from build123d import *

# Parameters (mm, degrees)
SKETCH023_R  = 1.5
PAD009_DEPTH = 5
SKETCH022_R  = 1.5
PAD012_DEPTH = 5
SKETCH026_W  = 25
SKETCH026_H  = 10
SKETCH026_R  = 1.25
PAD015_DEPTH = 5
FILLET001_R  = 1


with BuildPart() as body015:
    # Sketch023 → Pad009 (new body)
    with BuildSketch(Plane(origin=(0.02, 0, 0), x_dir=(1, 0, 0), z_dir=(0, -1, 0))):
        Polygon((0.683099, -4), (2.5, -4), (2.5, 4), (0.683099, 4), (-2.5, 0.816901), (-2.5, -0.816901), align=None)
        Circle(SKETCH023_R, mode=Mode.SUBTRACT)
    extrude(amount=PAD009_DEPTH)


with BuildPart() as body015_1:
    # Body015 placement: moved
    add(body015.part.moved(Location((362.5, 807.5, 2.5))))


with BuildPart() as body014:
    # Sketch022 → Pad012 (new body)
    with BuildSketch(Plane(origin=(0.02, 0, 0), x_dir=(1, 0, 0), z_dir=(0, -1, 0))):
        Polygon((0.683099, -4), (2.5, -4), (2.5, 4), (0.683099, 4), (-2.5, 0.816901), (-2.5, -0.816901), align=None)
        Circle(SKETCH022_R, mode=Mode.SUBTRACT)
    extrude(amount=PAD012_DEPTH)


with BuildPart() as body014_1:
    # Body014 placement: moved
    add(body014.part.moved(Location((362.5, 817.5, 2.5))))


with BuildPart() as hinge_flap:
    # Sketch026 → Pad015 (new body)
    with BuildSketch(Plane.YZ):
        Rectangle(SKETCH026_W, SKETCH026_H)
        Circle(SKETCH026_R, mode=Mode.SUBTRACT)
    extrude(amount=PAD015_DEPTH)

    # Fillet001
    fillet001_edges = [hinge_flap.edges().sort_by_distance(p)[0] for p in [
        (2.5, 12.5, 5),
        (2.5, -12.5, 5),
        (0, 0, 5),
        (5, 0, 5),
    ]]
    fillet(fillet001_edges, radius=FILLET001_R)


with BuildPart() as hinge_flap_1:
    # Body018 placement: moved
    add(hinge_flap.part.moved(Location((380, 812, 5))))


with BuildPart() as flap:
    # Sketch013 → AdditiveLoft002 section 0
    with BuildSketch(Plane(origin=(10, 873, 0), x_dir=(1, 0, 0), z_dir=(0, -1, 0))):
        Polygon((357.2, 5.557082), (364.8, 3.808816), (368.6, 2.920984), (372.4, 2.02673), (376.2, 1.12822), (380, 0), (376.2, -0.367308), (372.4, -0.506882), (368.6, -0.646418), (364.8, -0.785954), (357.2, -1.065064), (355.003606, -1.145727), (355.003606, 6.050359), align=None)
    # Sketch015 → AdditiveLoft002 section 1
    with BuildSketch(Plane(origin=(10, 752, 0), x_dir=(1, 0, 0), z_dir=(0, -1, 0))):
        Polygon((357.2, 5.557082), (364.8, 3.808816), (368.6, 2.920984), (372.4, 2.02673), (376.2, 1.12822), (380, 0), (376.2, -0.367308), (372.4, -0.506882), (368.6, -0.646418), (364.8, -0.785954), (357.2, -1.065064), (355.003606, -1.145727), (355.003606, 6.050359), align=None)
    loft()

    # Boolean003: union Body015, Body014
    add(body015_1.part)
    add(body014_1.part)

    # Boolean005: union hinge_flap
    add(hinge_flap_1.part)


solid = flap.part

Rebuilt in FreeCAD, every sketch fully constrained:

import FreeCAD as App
import Part
import Sketcher

V = App.Vector
Q = App.Units.Quantity


def edges_at(feature, points):
    """Names of the edges that pass closest to the given points."""
    edges = feature.Shape.Edges
    near = lambda p: min(range(len(edges)), key=lambda i: edges[i].distToShape(Part.Vertex(*p))[0])
    return sorted({f"Edge{near(p) + 1}" for p in points})


def add_polygon(sketch, points):
    """Adds a closed chain of lines whose ends are joined by coincident constraints."""
    first, n = sketch.GeometryCount, len(points)
    for a, b in zip(points, points[1:] + points[:1]):
        sketch.addGeometry(Part.LineSegment(App.Vector(*a, 0), App.Vector(*b, 0)), False)
    for i in range(n):
        sketch.addConstraint(Sketcher.Constraint("Coincident", first + i, 2, first + (i + 1) % n, 1))

doc = App.newDocument("Part")
params = doc.addObject("Spreadsheet::Sheet", "Params")
for row, (alias, value) in enumerate([
    ("sketch1_diameter", "3 mm"),
    ("sketch1_height", "8 mm"),
    ("pad1_length", "5 mm"),
    ("sketch2_diameter", "3 mm"),
    ("sketch2_height", "8 mm"),
    ("pad2_length", "5 mm"),
    ("sketch3_diameter", "2.5 mm"),
    ("sketch3_width", "25 mm"),
    ("sketch3_height", "10 mm"),
    ("pad3_length", "5 mm"),
    ("fillet_radius", "1 mm"),
], start=1):
    params.set(f"A{row}", alias)
    params.set(f"B{row}", "=" + value)
    params.setAlias(f"B{row}", alias)

body = doc.addObject("PartDesign::Body", "Body")

# Sketch on XZ plane
sketch1 = body.newObject("Sketcher::SketchObject", "Sketch")
sketch1.AttachmentSupport = (doc.getObject("XZ_Plane"), [""])
sketch1.MapMode = "FlatFace"
add_polygon(sketch1, [(0.7, -4), (2.5, -4), (2.5, 4), (0.7, 4), (-2.5, 0.8), (-2.5, -0.8)])  # lines 0-5
sketch1.addGeometry(Part.Circle(V(0, 0, 0), V(0, 0, 1), 1.5), False)  # 6
sketch1.addConstraint(Sketcher.Constraint("Horizontal", 0))
sketch1.addConstraint(Sketcher.Constraint("Vertical", 1))
sketch1.addConstraint(Sketcher.Constraint("Horizontal", 2))
sketch1.addConstraint(Sketcher.Constraint("Vertical", 4))
sketch1.addConstraint(Sketcher.Constraint("Symmetric", 2, 2, 5, 2, -1))
sketch1.addConstraint(Sketcher.Constraint("PointOnObject", 6, 3, -1))
sketch1.addConstraint(Sketcher.Constraint("Perpendicular", 3, 5))
sketch1.addConstraint(Sketcher.Constraint("Equal", 3, 5))
sketch1.addConstraint(Sketcher.Constraint("Diameter", 6, Q("3 mm")))
sketch1.addConstraint(Sketcher.Constraint("DistanceY", 1, 1, 1, 2, Q("8 mm")))
sketch1.addConstraint(Sketcher.Constraint("DistanceX", 3, 2, 1, 2, Q("5 mm")))
sketch1.addConstraint(Sketcher.Constraint("DistanceX", 6, 3, 0, 2, Q("2.5 mm")))
sketch1.addConstraint(Sketcher.Constraint("DistanceX", -1, 1, 6, 3, Q("0.02 mm")))
sketch1.addConstraint(Sketcher.Constraint("DistanceX", 0, 1, 0, 2, Q("1.816901 mm")))
sketch1.setExpression("Constraints[14]", "Params.sketch1_diameter")
sketch1.setExpression("Constraints[15]", "Params.sketch1_height")
pad1 = body.newObject("PartDesign::Pad", "Pad")
pad1.Profile = sketch1
pad1.setExpression("Length", "Params.pad1_length")
body2 = doc.addObject("PartDesign::Body", "Body001")
doc.recompute()

body.Placement = App.Placement(V(362.5, 807.5, 2.5), App.Rotation(V(0, 0, 1), 0))
boolean = body2.newObject("PartDesign::Boolean", "Boolean")
boolean.Type = "Fuse"
boolean.addObjects([body])
body3 = doc.addObject("PartDesign::Body", "Body002")

# Sketch on XZ plane
sketch2 = body3.newObject("Sketcher::SketchObject", "Sketch001")
sketch2.AttachmentSupport = (doc.getObject("XZ_Plane002"), [""])
sketch2.MapMode = "FlatFace"
add_polygon(sketch2, [(0.7, -4), (2.5, -4), (2.5, 4), (0.7, 4), (-2.5, 0.8), (-2.5, -0.8)])  # lines 0-5
sketch2.addGeometry(Part.Circle(V(0, 0, 0), V(0, 0, 1), 1.5), False)  # 6
sketch2.addConstraint(Sketcher.Constraint("Horizontal", 0))
sketch2.addConstraint(Sketcher.Constraint("Vertical", 1))
sketch2.addConstraint(Sketcher.Constraint("Horizontal", 2))
sketch2.addConstraint(Sketcher.Constraint("Vertical", 4))
sketch2.addConstraint(Sketcher.Constraint("Symmetric", 2, 2, 5, 2, -1))
sketch2.addConstraint(Sketcher.Constraint("PointOnObject", 6, 3, -1))
sketch2.addConstraint(Sketcher.Constraint("Perpendicular", 3, 5))
sketch2.addConstraint(Sketcher.Constraint("Equal", 3, 5))
sketch2.addConstraint(Sketcher.Constraint("Diameter", 6, Q("3 mm")))
sketch2.addConstraint(Sketcher.Constraint("DistanceY", 1, 1, 1, 2, Q("8 mm")))
sketch2.addConstraint(Sketcher.Constraint("DistanceX", 3, 2, 1, 2, Q("5 mm")))
sketch2.addConstraint(Sketcher.Constraint("DistanceX", 6, 3, 0, 2, Q("2.5 mm")))
sketch2.addConstraint(Sketcher.Constraint("DistanceX", -1, 1, 6, 3, Q("0.02 mm")))
sketch2.addConstraint(Sketcher.Constraint("DistanceX", 0, 1, 0, 2, Q("1.816901 mm")))
sketch2.setExpression("Constraints[14]", "Params.sketch2_diameter")
sketch2.setExpression("Constraints[15]", "Params.sketch2_height")
pad2 = body3.newObject("PartDesign::Pad", "Pad001")
pad2.Profile = sketch2
pad2.setExpression("Length", "Params.pad2_length")
body4 = doc.addObject("PartDesign::Body", "Body003")
doc.recompute()

body3.Placement = App.Placement(V(362.5, 817.5, 2.5), App.Rotation(V(0, 0, 1), 0))
boolean2 = body4.newObject("PartDesign::Boolean", "Boolean001")
boolean2.Type = "Fuse"
boolean2.addObjects([body3])
body5 = doc.addObject("PartDesign::Body", "Body004")

# Sketch on YZ plane
sketch3 = body5.newObject("Sketcher::SketchObject", "Sketch002")
sketch3.AttachmentSupport = (doc.getObject("YZ_Plane004"), [""])
sketch3.MapMode = "FlatFace"
add_polygon(sketch3, [(-12.5, 5), (-12.5, -5), (12.5, -5), (12.5, 5)])  # lines 0-3
sketch3.addGeometry(Part.Circle(V(0, 0, 0), V(0, 0, 1), 1.2), False)  # 4
sketch3.addConstraint(Sketcher.Constraint("Vertical", 0))
sketch3.addConstraint(Sketcher.Constraint("Horizontal", 1))
sketch3.addConstraint(Sketcher.Constraint("Vertical", 2))
sketch3.addConstraint(Sketcher.Constraint("Horizontal", 3))
sketch3.addConstraint(Sketcher.Constraint("Coincident", 4, 3, -1, 1))
sketch3.addConstraint(Sketcher.Constraint("Symmetric", 0, 2, 2, 2, -1, 1))
sketch3.addConstraint(Sketcher.Constraint("Diameter", 4, Q("2.5 mm")))
sketch3.addConstraint(Sketcher.Constraint("DistanceX", 1, 1, 1, 2, Q("25 mm")))
sketch3.addConstraint(Sketcher.Constraint("DistanceY", 0, 2, 0, 1, Q("10 mm")))
sketch3.setExpression("Constraints[10]", "Params.sketch3_diameter")
sketch3.setExpression("Constraints[11]", "Params.sketch3_width")
sketch3.setExpression("Constraints[12]", "Params.sketch3_height")
pad3 = body5.newObject("PartDesign::Pad", "Pad002")
pad3.Profile = sketch3
pad3.setExpression("Length", "Params.pad3_length")
doc.recompute()

fillet = body5.newObject("PartDesign::Fillet", "Fillet")
fillet.Base = (pad3, edges_at(pad3, [
    (2.5, 12.5, 5),
    (2.5, -12.5, 5),
    (0, 0, 5),
    (5, 0, 5),
]))
fillet.setExpression("Radius", "Params.fillet_radius")
body6 = doc.addObject("PartDesign::Body", "Body005")
doc.recompute()

body5.Placement = App.Placement(V(380, 812, 5), App.Rotation(V(0, 0, 1), 0))
boolean3 = body6.newObject("PartDesign::Boolean", "Boolean002")
boolean3.Type = "Fuse"
boolean3.addObjects([body5])
body7 = doc.addObject("PartDesign::Body", "Body006")

# Sketch on XZ plane
sketch4 = body7.newObject("Sketcher::SketchObject", "Sketch003")
sketch4.AttachmentSupport = (doc.getObject("XZ_Plane006"), [""])
sketch4.MapMode = "FlatFace"
sketch4.AttachmentOffset = App.Placement(V(0, 0, -873), App.Rotation())
add_polygon(sketch4, [(374.8, 3.808816), (367.2, 5.557082), (365.003606, 6.050359), (365.003606, -1.145727), (367.2, -1.065064), (374.8, -0.785954), (382.4, -0.506882), (386.2, -0.367308), (390, 0), (386.2, 1.12822), (382.4, 2.02673), (378.6, 2.920984)])  # lines 0-11
sketch4.addConstraint(Sketcher.Constraint("Vertical", 2))
sketch4.addConstraint(Sketcher.Constraint("PointOnObject", 7, 2, -1))
sketch4.addConstraint(Sketcher.Constraint("DistanceX", -1, 1, 7, 2, Q("390 mm")))
sketch4.addConstraint(Sketcher.Constraint("DistanceX", 3, 2, 6, 2, Q("19 mm")))
sketch4.addConstraint(Sketcher.Constraint("DistanceX", 0, 2, 6, 2, Q("19 mm")))
sketch4.addConstraint(Sketcher.Constraint("DistanceX", 3, 2, 8, 2, Q("19 mm")))
sketch4.addConstraint(Sketcher.Constraint("DistanceX", -1, 1, 0, 2, Q("367.2 mm")))
sketch4.addConstraint(Sketcher.Constraint("DistanceX", -1, 1, 4, 2, Q("374.8 mm")))
sketch4.addConstraint(Sketcher.Constraint("DistanceX", -1, 1, 5, 2, Q("382.4 mm")))
sketch4.addConstraint(Sketcher.Constraint("DistanceX", -1, 1, 9, 2, Q("382.4 mm")))
sketch4.addConstraint(Sketcher.Constraint("DistanceX", -1, 1, 10, 2, Q("378.6 mm")))
sketch4.addConstraint(Sketcher.Constraint("DistanceX", -1, 1, 11, 2, Q("374.8 mm")))
sketch4.addConstraint(Sketcher.Constraint("DistanceY", 5, 2, 11, 2, Q("4.315698 mm")))
sketch4.addConstraint(Sketcher.Constraint("Distance", 0, Q("7.798489 mm")))
sketch4.addConstraint(Sketcher.Constraint("Distance", 7, Q("3.817711 mm")))
sketch4.addConstraint(Sketcher.Constraint("Distance", 9, Q("3.904782 mm")))
sketch4.addConstraint(Sketcher.Constraint("Distance", 11, Q("3.902338 mm")))
sketch4.addConstraint(Sketcher.Constraint("DistanceY", 2, 2, 2, 1, Q("7.196086 mm")))
sketch4.addConstraint(Sketcher.Constraint("DistanceY", -1, 1, 1, 2, Q("6.050359 mm")))
sketch4.addConstraint(Sketcher.Constraint("DistanceY", -1, 1, 8, 2, Q("1.12822 mm")))
sketch4.addConstraint(Sketcher.Constraint("DistanceY", 2, 2, 0, 2, Q("6.702809 mm")))
sketch4.addConstraint(Sketcher.Constraint("DistanceY", 3, 2, 4, 2, Q("0.27911 mm")))
sketch4.addConstraint(Sketcher.Constraint("DistanceY", 3, 2, 5, 2, Q("0.558182 mm")))
sketch4.addConstraint(Sketcher.Constraint("Distance", 1, Q("2.251104 mm")))

# Sketch on XZ plane
sketch5 = body7.newObject("Sketcher::SketchObject", "Sketch004")
sketch5.AttachmentSupport = (doc.getObject("XZ_Plane006"), [""])
sketch5.MapMode = "FlatFace"
sketch5.AttachmentOffset = App.Placement(V(0, 0, -752), App.Rotation())
add_polygon(sketch5, [(374.8, 3.808816), (367.2, 5.557082), (365.003606, 6.050359), (365.003606, -1.145727), (367.2, -1.065064), (374.8, -0.785954), (382.4, -0.506882), (386.2, -0.367308), (390, 0), (386.2, 1.12822), (382.4, 2.02673), (378.6, 2.920984)])  # lines 0-11
sketch5.addConstraint(Sketcher.Constraint("Vertical", 2))
sketch5.addConstraint(Sketcher.Constraint("PointOnObject", 7, 2, -1))
sketch5.addConstraint(Sketcher.Constraint("DistanceX", -1, 1, 7, 2, Q("390 mm")))
sketch5.addConstraint(Sketcher.Constraint("DistanceX", 3, 2, 6, 2, Q("19 mm")))
sketch5.addConstraint(Sketcher.Constraint("DistanceX", 0, 2, 6, 2, Q("19 mm")))
sketch5.addConstraint(Sketcher.Constraint("DistanceX", 3, 2, 8, 2, Q("19 mm")))
sketch5.addConstraint(Sketcher.Constraint("DistanceX", -1, 1, 0, 2, Q("367.2 mm")))
sketch5.addConstraint(Sketcher.Constraint("DistanceX", -1, 1, 4, 2, Q("374.8 mm")))
sketch5.addConstraint(Sketcher.Constraint("DistanceX", -1, 1, 5, 2, Q("382.4 mm")))
sketch5.addConstraint(Sketcher.Constraint("DistanceX", -1, 1, 9, 2, Q("382.4 mm")))
sketch5.addConstraint(Sketcher.Constraint("DistanceX", -1, 1, 10, 2, Q("378.6 mm")))
sketch5.addConstraint(Sketcher.Constraint("DistanceX", -1, 1, 11, 2, Q("374.8 mm")))
sketch5.addConstraint(Sketcher.Constraint("DistanceY", 5, 2, 11, 2, Q("4.315698 mm")))
sketch5.addConstraint(Sketcher.Constraint("Distance", 0, Q("7.798489 mm")))
sketch5.addConstraint(Sketcher.Constraint("Distance", 7, Q("3.817711 mm")))
sketch5.addConstraint(Sketcher.Constraint("Distance", 9, Q("3.904782 mm")))
sketch5.addConstraint(Sketcher.Constraint("Distance", 11, Q("3.902338 mm")))
sketch5.addConstraint(Sketcher.Constraint("DistanceY", 2, 2, 2, 1, Q("7.196086 mm")))
sketch5.addConstraint(Sketcher.Constraint("DistanceY", -1, 1, 1, 2, Q("6.050359 mm")))
sketch5.addConstraint(Sketcher.Constraint("DistanceY", -1, 1, 8, 2, Q("1.12822 mm")))
sketch5.addConstraint(Sketcher.Constraint("DistanceY", 2, 2, 0, 2, Q("6.702809 mm")))
sketch5.addConstraint(Sketcher.Constraint("DistanceY", 3, 2, 4, 2, Q("0.27911 mm")))
sketch5.addConstraint(Sketcher.Constraint("DistanceY", 3, 2, 5, 2, Q("0.558182 mm")))
sketch5.addConstraint(Sketcher.Constraint("Distance", 1, Q("2.251104 mm")))

additiveloft = body7.newObject("PartDesign::AdditiveLoft", "AdditiveLoft")
additiveloft.Profile = sketch4
additiveloft.Sections = [sketch5]
doc.recompute()

boolean4 = body7.newObject("PartDesign::Boolean", "Boolean003")
boolean4.Type = "Fuse"
boolean4.addObjects([body2])
doc.recompute()

boolean5 = body7.newObject("PartDesign::Boolean", "Boolean004")
boolean5.Type = "Fuse"
boolean5.addObjects([body4])
doc.recompute()

boolean6 = body7.newObject("PartDesign::Boolean", "Boolean005")
boolean6.Type = "Fuse"
boolean6.addObjects([body6])

doc.recompute()
